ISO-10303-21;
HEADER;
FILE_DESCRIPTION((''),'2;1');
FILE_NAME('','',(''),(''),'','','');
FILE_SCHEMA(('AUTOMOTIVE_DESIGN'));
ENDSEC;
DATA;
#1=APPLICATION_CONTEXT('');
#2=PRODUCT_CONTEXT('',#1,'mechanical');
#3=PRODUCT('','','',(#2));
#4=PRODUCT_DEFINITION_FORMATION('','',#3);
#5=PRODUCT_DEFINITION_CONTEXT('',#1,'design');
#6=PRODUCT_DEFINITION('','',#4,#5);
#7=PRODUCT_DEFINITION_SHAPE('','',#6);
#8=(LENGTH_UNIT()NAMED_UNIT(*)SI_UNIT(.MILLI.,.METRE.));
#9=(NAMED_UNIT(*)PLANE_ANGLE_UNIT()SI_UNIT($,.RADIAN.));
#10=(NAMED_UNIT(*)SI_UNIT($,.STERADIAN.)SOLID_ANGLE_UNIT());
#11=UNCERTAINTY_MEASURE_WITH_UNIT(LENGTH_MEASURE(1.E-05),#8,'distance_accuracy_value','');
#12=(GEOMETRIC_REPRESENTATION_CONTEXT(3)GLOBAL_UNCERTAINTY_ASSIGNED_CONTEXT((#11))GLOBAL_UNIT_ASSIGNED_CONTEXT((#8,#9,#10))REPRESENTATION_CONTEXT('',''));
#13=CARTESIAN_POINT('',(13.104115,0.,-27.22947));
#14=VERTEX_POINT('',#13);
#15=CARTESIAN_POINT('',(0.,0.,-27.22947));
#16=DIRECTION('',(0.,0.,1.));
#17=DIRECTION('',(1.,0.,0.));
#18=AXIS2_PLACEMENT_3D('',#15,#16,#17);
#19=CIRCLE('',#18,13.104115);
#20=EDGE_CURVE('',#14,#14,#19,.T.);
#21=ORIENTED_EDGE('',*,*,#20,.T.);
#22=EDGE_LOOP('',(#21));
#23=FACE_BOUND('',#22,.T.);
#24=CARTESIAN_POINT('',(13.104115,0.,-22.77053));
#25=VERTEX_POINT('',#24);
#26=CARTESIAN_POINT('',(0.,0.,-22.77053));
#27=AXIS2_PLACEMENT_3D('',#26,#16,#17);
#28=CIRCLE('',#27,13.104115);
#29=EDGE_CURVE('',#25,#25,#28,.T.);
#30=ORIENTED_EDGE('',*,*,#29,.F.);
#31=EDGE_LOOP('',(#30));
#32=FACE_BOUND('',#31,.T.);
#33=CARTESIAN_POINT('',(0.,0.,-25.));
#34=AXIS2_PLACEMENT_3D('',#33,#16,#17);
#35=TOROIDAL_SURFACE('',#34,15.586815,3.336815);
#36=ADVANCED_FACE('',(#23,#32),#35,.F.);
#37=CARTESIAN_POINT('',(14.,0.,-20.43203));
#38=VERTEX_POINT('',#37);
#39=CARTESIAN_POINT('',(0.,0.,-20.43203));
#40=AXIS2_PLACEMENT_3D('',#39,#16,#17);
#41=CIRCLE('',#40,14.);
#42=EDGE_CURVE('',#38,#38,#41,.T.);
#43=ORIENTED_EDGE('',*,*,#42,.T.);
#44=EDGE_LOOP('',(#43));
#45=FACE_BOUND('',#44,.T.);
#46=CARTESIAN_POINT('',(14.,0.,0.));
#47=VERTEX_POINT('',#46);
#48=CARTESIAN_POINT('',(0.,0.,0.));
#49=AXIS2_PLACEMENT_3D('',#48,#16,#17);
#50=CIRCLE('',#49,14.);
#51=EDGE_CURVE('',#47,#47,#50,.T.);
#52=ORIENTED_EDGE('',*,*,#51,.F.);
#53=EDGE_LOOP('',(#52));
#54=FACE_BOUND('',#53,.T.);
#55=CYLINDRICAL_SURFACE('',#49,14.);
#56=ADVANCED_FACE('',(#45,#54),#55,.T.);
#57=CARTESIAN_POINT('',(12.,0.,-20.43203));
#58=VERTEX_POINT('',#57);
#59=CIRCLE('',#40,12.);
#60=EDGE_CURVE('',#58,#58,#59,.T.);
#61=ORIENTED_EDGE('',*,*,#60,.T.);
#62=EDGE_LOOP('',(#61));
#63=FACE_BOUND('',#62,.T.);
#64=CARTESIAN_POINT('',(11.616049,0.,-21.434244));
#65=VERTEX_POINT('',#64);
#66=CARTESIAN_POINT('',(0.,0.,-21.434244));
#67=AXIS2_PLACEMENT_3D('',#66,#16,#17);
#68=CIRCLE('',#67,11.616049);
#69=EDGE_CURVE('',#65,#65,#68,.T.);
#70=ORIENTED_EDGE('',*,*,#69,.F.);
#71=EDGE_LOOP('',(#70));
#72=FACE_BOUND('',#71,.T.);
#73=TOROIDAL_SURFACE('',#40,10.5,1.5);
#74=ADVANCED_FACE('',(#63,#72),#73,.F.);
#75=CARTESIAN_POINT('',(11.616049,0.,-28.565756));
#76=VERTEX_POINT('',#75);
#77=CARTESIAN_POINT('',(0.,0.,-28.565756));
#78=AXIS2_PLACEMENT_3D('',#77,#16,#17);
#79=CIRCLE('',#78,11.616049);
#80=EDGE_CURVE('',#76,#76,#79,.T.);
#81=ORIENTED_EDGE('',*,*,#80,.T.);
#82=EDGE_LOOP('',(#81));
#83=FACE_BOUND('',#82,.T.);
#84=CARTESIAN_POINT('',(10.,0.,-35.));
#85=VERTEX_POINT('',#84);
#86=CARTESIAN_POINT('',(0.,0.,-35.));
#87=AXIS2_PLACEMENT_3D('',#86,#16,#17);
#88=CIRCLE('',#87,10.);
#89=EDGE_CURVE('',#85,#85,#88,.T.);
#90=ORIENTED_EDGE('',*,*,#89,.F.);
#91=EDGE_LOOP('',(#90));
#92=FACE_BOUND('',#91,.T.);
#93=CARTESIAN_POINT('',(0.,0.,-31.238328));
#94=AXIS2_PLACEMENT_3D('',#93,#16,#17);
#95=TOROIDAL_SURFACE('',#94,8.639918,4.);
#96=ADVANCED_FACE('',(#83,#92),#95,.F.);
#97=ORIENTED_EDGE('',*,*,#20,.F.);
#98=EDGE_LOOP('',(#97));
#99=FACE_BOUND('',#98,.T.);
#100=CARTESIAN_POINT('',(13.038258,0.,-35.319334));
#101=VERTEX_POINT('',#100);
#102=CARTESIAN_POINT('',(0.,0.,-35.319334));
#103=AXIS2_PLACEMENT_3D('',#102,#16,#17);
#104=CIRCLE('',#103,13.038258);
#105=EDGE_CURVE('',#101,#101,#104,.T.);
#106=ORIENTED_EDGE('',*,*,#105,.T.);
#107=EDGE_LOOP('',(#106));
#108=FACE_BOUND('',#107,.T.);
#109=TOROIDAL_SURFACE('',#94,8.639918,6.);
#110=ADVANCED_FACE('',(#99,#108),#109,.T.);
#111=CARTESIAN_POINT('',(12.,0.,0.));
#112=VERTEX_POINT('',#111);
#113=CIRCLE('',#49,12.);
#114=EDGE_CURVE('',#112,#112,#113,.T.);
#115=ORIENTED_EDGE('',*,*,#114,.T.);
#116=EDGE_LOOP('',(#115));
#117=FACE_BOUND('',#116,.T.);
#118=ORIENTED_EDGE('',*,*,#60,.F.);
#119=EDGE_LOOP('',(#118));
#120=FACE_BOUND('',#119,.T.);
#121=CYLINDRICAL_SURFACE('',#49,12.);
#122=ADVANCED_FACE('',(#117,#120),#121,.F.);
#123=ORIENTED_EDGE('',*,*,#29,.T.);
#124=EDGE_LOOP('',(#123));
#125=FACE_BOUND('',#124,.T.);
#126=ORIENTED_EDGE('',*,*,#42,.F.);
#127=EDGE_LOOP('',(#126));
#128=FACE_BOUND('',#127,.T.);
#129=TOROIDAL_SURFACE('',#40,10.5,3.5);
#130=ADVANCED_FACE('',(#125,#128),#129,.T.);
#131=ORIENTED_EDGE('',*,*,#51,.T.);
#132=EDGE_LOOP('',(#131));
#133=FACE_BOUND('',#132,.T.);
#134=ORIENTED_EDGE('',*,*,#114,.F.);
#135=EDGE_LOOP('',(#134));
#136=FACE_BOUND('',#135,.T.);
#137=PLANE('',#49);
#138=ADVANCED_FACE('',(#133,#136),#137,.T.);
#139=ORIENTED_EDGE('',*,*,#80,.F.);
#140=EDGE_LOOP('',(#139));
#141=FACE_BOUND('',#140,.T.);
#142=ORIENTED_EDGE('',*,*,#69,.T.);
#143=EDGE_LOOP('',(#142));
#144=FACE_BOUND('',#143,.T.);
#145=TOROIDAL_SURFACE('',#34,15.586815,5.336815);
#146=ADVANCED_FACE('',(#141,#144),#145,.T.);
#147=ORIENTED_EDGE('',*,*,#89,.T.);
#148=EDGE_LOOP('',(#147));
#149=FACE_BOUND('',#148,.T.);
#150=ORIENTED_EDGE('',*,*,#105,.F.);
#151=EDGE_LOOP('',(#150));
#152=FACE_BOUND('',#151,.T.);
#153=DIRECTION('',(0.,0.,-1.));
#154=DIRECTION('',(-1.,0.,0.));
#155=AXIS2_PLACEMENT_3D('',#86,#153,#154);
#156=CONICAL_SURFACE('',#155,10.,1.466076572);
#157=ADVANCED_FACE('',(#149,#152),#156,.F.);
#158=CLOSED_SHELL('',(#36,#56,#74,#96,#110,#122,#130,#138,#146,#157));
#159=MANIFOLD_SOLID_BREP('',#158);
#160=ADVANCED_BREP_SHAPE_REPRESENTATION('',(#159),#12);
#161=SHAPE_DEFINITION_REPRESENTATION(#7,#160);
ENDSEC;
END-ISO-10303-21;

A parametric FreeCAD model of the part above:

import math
import FreeCAD as App
import Part
import Sketcher
Q = App.Units.Quantity

doc = App.newDocument("Part")
body = doc.addObject("PartDesign::Body", "Body")

# Sketch on XZ plane
sketch1 = body.newObject("Sketcher::SketchObject", "Sketch")
sketch1.AttachmentSupport = (doc.getObject("XZ_Plane"), [""])
sketch1.MapMode = "FlatFace"
sketch1.addGeometry([
    Part.ArcOfCircle(Part.Circle(App.Vector(15.586815, -25, 0), App.Vector(0, 0, 1), 3.336815), math.radians(138.076097), math.radians(221.923903)),  # 0
    Part.ArcOfCircle(Part.Circle(App.Vector(8.639918, -31.238328, 0), App.Vector(0, 0, 1), 6), math.radians(-42.856743), math.radians(41.923903)),  # 1
    Part.LineSegment(App.Vector(13.038258, -35.319334, 0), App.Vector(10, -35, 0)),  # 2
    Part.ArcOfCircle(Part.Circle(App.Vector(8.639918, -31.238328, 0), App.Vector(0, 0, 1), 4), math.radians(-70.121874), math.radians(41.923903)),  # 3
    Part.ArcOfCircle(Part.Circle(App.Vector(15.586815, -25, 0), App.Vector(0, 0, 1), 5.336815), math.radians(138.076097), math.radians(221.923903)),  # 4
    Part.ArcOfCircle(Part.Circle(App.Vector(10.5, -20.43203, 0), App.Vector(0, 0, 1), 1.5), math.radians(-41.923903), math.radians(0)),  # 5
    Part.LineSegment(App.Vector(12, -20.43203, 0), App.Vector(12, 0, 0)),  # 6
    Part.LineSegment(App.Vector(12, 0, 0), App.Vector(14, 0, 0)),  # 7
    Part.LineSegment(App.Vector(14, 0, 0), App.Vector(14, -20.43203, 0)),  # 8
    Part.ArcOfCircle(Part.Circle(App.Vector(10.5, -20.43203, 0), App.Vector(0, 0, 1), 3.5), math.radians(-41.923903), math.radians(0)),  # 9
], False)
sketch1.addConstraint([
    Sketcher.Constraint("Tangent", 0, 2, 1, 2),
    Sketcher.Constraint("Coincident", 1, 1, 2, 1),
    Sketcher.Constraint("Coincident", 2, 2, 3, 1),
    Sketcher.Constraint("Tangent", 3, 2, 4, 2),
    Sketcher.Constraint("Tangent", 4, 1, 5, 1),
    Sketcher.Constraint("Tangent", 5, 2, 6, 1),
    Sketcher.Constraint("Coincident", 6, 2, 7, 1),
    Sketcher.Constraint("Coincident", 7, 2, 8, 1),
    Sketcher.Constraint("Tangent", 8, 2, 9, 2),
    Sketcher.Constraint("Tangent", 9, 1, 0, 1),
    Sketcher.Constraint("Vertical", 6),
    Sketcher.Constraint("Horizontal", 7),
    Sketcher.Constraint("Vertical", 8),
    Sketcher.Constraint("Coincident", 3, 3, 1, 3),
    Sketcher.Constraint("Coincident", 4, 3, 0, 3),
    Sketcher.Constraint("Coincident", 9, 3, 5, 3),
    Sketcher.Constraint("PointOnObject", 6, 2, -1),
    Sketcher.Constraint("Vertical", 3, 2, 4, 1),
    Sketcher.Constraint("Radius", 1, 6.0),
    Sketcher.Constraint("Radius", 3, 4.0),
    Sketcher.Constraint("Radius", 5, 1.5),
    Sketcher.Constraint("Angle", 2, Q("174 deg")),
    Sketcher.Constraint("DistanceY", 0, 3, -1, 1, 25.0),
    Sketcher.Constraint("DistanceX", -1, 1, 2, 2, 10.0),
    Sketcher.Constraint("DistanceY", 2, 2, -1, 1, 35.0),
    Sketcher.Constraint("DistanceX", -1, 1, 5, 2, 12.0),
    Sketcher.Constraint("Radius", 0, 3.336815),
])
revolution = body.newObject("PartDesign::Revolution", "Revolution")
revolution.Profile = sketch1
revolution.ReferenceAxis = (sketch1, ["V_Axis"])
revolution.Angle = 360

doc.recompute()
